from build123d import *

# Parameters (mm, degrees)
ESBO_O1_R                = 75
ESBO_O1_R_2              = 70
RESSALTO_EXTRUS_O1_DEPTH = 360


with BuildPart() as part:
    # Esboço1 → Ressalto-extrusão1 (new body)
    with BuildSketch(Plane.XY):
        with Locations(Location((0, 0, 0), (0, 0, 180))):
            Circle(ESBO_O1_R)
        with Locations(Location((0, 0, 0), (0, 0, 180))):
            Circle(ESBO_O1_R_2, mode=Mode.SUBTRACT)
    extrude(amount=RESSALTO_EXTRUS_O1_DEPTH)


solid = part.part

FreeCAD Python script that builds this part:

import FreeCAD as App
import Part
import Sketcher

V = App.Vector

doc = App.newDocument("Part")
body = doc.addObject("PartDesign::Body", "Body")

# Sketch on XY plane
sketch1 = body.newObject("Sketcher::SketchObject", "Sketch")
sketch1.AttachmentSupport = (doc.getObject("XY_Plane"), [""])
sketch1.MapMode = "FlatFace"
sketch1.addGeometry(Part.Circle(V(0, 0, 0), V(0, 0, 1), 75), False)
sketch1.addGeometry(Part.Circle(V(0, 0, 0), V(0, 0, 1), 70), False)
sketch1.addConstraint(Sketcher.Constraint("Coincident", 0, 3, -1, 1))
sketch1.addConstraint(Sketcher.Constraint("Coincident", 1, 3, -1, 1))
sketch1.addConstraint(Sketcher.Constraint("Diameter", 0, 150.0))
sketch1.addConstraint(Sketcher.Constraint("Diameter", 1, 140.0))
pad1 = body.newObject("PartDesign::Pad", "Pad")
pad1.Profile = sketch1
pad1.Length = 360

doc.recompute()
